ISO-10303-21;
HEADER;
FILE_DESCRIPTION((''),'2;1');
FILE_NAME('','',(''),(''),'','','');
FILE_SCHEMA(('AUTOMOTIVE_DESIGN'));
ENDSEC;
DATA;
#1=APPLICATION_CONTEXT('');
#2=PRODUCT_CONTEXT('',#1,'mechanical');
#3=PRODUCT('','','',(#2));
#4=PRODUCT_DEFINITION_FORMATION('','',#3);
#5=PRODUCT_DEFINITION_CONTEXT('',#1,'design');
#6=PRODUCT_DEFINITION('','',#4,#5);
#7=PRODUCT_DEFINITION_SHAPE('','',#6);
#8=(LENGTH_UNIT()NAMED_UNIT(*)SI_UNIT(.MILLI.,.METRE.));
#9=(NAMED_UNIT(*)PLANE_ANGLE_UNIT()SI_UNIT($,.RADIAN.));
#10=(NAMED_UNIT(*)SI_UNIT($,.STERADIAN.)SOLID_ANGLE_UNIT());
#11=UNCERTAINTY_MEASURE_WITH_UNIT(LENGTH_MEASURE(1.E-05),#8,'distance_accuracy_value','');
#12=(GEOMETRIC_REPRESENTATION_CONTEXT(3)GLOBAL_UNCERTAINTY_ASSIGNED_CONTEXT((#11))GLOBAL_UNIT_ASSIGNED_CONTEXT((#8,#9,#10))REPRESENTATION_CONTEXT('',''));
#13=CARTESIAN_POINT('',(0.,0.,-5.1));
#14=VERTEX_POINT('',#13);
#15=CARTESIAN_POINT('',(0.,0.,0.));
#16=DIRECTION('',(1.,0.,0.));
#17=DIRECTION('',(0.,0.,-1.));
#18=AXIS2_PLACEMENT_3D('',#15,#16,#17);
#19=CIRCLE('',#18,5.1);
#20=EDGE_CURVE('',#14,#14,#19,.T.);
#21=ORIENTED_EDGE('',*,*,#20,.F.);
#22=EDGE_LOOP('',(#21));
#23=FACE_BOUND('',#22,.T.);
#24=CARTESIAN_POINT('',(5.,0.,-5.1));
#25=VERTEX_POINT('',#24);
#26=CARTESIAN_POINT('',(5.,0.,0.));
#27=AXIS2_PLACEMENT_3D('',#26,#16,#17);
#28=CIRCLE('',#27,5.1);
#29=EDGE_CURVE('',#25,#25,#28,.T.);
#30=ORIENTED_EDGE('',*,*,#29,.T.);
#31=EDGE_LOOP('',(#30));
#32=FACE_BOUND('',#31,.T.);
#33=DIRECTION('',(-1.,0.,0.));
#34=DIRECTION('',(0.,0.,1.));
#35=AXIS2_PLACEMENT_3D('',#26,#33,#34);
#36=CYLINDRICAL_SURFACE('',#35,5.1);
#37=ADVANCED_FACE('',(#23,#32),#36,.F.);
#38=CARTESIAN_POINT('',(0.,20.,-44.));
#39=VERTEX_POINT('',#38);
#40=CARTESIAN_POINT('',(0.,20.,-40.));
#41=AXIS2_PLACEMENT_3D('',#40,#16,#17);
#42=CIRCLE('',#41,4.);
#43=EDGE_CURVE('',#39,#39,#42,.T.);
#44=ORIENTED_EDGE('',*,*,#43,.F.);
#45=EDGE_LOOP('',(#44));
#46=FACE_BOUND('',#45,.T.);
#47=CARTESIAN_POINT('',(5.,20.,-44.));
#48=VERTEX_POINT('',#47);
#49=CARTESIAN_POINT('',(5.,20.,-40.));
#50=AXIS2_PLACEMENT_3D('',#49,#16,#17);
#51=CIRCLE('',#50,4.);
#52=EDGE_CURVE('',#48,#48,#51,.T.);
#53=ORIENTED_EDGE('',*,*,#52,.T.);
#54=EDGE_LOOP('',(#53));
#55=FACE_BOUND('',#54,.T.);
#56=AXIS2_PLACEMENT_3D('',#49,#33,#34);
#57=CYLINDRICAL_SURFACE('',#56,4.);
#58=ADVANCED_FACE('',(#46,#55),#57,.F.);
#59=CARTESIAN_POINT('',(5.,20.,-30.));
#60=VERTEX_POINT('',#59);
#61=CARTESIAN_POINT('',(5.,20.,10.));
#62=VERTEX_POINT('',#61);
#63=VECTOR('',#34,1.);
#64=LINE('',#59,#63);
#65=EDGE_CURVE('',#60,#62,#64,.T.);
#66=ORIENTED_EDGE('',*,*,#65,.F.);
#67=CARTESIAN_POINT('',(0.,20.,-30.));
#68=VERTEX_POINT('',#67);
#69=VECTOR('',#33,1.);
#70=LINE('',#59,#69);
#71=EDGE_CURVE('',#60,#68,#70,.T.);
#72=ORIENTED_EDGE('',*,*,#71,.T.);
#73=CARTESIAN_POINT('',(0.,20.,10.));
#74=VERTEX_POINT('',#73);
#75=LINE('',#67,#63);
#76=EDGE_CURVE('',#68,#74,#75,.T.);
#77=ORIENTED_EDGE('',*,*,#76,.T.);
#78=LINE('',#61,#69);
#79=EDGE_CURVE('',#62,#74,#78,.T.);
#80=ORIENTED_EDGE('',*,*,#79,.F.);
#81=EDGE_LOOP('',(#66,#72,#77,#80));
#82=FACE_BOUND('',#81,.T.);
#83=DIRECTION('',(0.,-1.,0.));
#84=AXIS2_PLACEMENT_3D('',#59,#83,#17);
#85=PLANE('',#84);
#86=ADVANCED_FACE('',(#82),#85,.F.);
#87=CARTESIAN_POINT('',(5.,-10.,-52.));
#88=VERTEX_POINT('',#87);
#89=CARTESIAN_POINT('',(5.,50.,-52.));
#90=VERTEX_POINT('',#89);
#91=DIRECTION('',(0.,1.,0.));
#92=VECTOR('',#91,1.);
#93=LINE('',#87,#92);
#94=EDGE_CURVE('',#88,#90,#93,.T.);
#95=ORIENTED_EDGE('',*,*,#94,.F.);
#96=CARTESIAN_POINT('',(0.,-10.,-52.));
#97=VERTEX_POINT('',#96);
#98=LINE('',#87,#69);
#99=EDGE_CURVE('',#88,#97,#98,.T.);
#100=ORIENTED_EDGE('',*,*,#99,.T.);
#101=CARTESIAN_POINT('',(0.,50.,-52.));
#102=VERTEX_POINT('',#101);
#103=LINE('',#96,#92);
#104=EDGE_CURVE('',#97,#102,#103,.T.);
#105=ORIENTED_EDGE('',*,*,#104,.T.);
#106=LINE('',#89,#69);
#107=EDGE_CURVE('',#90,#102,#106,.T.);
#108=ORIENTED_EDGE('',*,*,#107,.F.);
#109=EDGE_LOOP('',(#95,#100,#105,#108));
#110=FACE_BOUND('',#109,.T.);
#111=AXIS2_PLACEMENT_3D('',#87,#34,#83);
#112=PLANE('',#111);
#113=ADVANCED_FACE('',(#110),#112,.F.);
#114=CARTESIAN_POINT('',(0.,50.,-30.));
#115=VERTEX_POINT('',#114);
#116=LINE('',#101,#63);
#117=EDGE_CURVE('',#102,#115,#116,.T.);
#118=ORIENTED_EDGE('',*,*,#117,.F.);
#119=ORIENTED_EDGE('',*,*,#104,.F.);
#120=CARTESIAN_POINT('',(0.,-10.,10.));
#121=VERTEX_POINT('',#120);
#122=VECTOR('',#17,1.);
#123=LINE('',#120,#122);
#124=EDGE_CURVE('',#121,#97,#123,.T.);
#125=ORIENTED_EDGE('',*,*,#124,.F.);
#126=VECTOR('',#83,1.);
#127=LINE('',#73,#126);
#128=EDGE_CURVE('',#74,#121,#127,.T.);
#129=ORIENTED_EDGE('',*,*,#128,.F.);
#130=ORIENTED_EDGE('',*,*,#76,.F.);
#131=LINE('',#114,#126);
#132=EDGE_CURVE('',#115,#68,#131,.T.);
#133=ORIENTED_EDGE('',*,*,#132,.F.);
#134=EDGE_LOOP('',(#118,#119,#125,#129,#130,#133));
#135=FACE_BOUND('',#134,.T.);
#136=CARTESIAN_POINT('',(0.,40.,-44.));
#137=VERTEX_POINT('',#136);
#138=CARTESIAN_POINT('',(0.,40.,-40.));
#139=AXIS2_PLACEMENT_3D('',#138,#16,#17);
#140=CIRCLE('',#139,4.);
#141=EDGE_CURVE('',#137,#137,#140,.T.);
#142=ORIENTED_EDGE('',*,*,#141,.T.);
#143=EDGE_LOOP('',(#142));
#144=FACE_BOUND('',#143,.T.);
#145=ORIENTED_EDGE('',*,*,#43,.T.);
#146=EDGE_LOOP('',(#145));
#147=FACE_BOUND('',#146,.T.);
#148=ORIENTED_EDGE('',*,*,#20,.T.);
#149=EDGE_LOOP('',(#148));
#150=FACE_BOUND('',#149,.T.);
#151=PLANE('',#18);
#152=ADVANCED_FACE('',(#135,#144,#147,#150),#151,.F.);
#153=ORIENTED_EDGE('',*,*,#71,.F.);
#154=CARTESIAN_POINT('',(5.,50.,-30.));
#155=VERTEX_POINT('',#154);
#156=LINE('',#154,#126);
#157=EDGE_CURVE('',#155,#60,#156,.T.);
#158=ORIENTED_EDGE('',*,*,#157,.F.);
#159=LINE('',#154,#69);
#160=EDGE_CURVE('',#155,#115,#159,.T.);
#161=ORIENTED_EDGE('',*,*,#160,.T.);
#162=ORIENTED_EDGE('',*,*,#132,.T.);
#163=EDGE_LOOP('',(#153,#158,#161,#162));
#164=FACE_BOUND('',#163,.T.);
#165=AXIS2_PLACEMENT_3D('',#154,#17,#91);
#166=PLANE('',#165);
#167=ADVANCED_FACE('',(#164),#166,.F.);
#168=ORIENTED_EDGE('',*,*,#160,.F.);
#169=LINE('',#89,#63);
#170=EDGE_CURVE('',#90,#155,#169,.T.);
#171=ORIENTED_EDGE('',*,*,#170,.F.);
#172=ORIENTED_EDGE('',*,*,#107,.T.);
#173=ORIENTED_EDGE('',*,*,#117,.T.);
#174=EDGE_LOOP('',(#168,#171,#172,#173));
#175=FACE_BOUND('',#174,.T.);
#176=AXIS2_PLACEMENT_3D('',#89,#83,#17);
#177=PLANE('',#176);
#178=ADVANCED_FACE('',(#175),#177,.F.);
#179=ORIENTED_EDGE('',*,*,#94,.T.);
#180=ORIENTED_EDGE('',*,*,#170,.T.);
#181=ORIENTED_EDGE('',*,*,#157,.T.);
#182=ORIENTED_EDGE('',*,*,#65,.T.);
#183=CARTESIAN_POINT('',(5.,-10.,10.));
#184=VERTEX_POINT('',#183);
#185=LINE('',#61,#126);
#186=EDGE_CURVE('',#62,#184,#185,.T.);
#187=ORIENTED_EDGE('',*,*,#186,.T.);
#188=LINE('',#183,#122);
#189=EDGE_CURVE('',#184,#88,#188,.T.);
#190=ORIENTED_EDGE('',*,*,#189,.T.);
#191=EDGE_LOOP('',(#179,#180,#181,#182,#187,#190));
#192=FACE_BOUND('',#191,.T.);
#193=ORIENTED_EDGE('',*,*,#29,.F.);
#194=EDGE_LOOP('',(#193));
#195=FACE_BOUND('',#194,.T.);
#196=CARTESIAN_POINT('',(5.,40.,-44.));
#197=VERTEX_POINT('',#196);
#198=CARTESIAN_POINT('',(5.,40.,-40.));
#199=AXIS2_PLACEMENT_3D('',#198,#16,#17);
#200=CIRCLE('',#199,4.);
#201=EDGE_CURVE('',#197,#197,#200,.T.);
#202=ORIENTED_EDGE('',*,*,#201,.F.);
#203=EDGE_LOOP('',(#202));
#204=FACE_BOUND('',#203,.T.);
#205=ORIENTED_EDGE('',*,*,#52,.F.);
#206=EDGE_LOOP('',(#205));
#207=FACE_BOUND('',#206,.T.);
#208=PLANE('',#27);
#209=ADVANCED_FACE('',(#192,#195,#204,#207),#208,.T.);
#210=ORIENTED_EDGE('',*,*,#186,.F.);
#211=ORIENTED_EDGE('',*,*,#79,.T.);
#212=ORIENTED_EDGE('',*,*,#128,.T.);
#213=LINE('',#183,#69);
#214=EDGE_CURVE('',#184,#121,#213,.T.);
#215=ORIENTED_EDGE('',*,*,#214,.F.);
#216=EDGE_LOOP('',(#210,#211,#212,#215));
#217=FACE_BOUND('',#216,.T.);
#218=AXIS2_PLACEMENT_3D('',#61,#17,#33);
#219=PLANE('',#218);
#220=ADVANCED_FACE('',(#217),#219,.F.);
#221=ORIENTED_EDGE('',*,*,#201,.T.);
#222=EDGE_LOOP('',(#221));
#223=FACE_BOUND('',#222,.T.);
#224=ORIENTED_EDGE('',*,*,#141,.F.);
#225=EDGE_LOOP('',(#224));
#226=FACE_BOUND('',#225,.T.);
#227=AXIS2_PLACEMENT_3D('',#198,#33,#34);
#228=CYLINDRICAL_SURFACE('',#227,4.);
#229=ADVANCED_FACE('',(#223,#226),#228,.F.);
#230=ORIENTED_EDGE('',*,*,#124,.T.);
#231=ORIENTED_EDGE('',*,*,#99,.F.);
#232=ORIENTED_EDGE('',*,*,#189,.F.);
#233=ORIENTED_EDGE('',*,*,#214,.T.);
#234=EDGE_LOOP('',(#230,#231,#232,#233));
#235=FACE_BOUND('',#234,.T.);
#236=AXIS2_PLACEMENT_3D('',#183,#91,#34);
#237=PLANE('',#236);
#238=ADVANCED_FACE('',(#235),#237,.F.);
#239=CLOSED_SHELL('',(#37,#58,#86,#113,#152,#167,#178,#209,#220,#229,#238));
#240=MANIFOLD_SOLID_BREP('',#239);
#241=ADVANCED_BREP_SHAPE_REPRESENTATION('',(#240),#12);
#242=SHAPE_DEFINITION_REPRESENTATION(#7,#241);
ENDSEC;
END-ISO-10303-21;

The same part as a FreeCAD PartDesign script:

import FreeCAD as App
import Part
import Sketcher

V = App.Vector
Q = App.Units.Quantity

doc = App.newDocument("Part")
body = doc.addObject("PartDesign::Body", "Body")

# Sketch on YZ plane
sketch1 = doc.addObject("Sketcher::SketchObject", "Sketch")
body.addObject(sketch1)
sketch1.AttachmentSupport = (doc.YZ_Plane, [""])
sketch1.MapMode = "FlatFace"
sketch1.addGeometry([
    Part.LineSegment(V(-10, -52, 0), V(50, -52, 0)),  # 0
    Part.LineSegment(V(50, -52, 0), V(50, -30, 0)),  # 1
    Part.LineSegment(V(50, -30, 0), V(20, -30, 0)),  # 2
    Part.LineSegment(V(20, -30, 0), V(20, 10, 0)),  # 3
    Part.LineSegment(V(20, 10, 0), V(-10, 10, 0)),  # 4
    Part.LineSegment(V(-10, 10, 0), V(-10, -52, 0)),  # 5
    Part.Circle(V(0, 0, 0), V(0, 0, 1), 5.1),  # 6
    Part.Circle(V(20, -40, 0), V(0, 0, 1), 4),  # 7
    Part.Circle(V(40, -40, 0), V(0, 0, 1), 4),  # 8
], False)
sketch1.addConstraint([
    Sketcher.Constraint("Coincident", 0, 2, 1, 1),
    Sketcher.Constraint("Coincident", 1, 2, 2, 1),
    Sketcher.Constraint("Coincident", 2, 2, 3, 1),
    Sketcher.Constraint("Coincident", 3, 2, 4, 1),
    Sketcher.Constraint("Coincident", 4, 2, 5, 1),
    Sketcher.Constraint("Coincident", 5, 2, 0, 1),
    Sketcher.Constraint("Horizontal", 0),
    Sketcher.Constraint("Vertical", 1),
    Sketcher.Constraint("Horizontal", 2),
    Sketcher.Constraint("Vertical", 3),
    Sketcher.Constraint("Horizontal", 4),
    Sketcher.Constraint("Vertical", 5),
    Sketcher.Constraint("Coincident", 6, 3, -1, 1),
    Sketcher.Constraint("Equal", 7, 8),
    Sketcher.Constraint("Horizontal", 7, 3, 8, 3),
    Sketcher.Constraint("Vertical", 7, 3, 2, 2),
    Sketcher.Constraint("Equal", 2, 4),
    Sketcher.Constraint("Diameter", 7, Q("8 mm")),
    Sketcher.Constraint("Diameter", 6, Q("10.2 mm")),
    Sketcher.Constraint("DistanceX", 0, 1, 0, 2, Q("60 mm")),
    Sketcher.Constraint("DistanceY", 1, 1, 1, 2, Q("22 mm")),
    Sketcher.Constraint("DistanceY", 3, 1, 3, 2, Q("40 mm")),
    Sketcher.Constraint("DistanceX", -1, 1, 7, 3, Q("20 mm")),
    Sketcher.Constraint("DistanceY", 7, 3, -1, 1, Q("40 mm")),
    Sketcher.Constraint("DistanceX", -1, 1, 8, 3, Q("40 mm")),
    Sketcher.Constraint("DistanceY", 0, 2, -1, 1, Q("52 mm")),
])
pad1 = doc.addObject("PartDesign::Pad", "Pad")
body.addObject(pad1)
pad1.Profile = sketch1
pad1.Length = 5

doc.recompute()
